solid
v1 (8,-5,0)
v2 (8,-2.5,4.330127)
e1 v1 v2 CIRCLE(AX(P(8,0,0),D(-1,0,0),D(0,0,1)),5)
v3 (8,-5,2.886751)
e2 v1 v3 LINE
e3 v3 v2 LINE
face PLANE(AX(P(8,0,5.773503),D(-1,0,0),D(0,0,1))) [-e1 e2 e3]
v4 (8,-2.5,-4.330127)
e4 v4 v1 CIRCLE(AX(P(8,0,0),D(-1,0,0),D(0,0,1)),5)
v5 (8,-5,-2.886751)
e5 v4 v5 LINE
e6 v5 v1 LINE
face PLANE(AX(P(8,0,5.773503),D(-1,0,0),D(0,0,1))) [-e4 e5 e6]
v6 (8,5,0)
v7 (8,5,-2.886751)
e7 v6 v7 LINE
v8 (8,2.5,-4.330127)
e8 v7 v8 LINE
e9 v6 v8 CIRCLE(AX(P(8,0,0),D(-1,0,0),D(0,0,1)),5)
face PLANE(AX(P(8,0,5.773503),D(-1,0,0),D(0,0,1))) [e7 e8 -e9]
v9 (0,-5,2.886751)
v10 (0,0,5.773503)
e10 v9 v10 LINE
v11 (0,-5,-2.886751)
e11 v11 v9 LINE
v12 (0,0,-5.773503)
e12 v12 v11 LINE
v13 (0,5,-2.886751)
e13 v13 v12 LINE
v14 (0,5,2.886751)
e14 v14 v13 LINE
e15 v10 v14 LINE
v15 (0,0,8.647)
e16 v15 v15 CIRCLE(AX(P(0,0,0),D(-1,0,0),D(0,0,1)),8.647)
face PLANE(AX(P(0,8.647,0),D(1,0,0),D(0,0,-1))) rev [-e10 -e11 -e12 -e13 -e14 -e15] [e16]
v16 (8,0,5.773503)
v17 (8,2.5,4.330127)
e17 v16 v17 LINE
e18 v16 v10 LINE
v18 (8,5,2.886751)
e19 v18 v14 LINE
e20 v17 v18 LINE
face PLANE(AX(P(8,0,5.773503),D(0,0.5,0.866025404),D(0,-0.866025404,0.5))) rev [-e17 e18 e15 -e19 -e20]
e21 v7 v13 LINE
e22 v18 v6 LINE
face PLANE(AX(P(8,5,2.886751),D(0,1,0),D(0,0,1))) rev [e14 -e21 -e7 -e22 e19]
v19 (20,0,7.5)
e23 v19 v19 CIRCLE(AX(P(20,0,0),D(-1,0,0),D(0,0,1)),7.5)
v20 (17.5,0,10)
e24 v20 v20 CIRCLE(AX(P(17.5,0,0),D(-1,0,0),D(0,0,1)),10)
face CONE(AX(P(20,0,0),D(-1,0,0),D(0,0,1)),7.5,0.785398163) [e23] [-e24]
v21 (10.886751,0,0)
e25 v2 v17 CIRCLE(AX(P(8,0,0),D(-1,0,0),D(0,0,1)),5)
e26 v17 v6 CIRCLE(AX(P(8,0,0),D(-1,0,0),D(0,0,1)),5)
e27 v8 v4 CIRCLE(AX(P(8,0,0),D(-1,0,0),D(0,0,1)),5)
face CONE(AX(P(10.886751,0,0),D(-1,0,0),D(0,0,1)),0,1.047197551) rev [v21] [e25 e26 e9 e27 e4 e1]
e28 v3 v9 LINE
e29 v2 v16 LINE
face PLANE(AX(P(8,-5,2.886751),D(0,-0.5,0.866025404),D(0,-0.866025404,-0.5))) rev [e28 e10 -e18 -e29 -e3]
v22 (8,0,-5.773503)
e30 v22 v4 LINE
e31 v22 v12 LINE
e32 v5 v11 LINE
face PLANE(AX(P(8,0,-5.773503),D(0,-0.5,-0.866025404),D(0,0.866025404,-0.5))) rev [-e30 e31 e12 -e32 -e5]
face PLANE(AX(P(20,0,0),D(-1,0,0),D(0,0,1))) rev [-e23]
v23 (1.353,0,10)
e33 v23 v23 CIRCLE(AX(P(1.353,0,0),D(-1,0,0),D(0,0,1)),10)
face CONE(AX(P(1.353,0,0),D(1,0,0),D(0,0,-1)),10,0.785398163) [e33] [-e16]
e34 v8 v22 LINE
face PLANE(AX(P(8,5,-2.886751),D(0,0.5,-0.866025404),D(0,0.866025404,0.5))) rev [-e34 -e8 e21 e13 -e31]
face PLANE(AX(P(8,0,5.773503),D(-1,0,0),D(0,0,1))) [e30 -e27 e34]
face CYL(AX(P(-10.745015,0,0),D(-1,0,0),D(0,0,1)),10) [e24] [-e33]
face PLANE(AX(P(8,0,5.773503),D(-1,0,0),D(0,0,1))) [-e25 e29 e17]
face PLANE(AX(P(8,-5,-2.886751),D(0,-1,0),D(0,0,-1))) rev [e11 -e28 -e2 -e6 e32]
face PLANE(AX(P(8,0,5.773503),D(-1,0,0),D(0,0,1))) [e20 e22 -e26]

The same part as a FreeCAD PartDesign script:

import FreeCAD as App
import Part
import Sketcher

V = App.Vector
Q = App.Units.Quantity


def add_polygon(sketch, points):
    """Adds a closed chain of lines whose ends are joined by coincident constraints."""
    first, n = sketch.GeometryCount, len(points)
    for a, b in zip(points, points[1:] + points[:1]):
        sketch.addGeometry(Part.LineSegment(App.Vector(*a, 0), App.Vector(*b, 0)), False)
    for i in range(n):
        sketch.addConstraint(Sketcher.Constraint("Coincident", first + i, 2, first + (i + 1) % n, 1))

doc = App.newDocument("Part")
body = doc.addObject("PartDesign::Body", "Body")

# Sketch on XY plane
sketch1 = body.newObject("Sketcher::SketchObject", "Sketch")
sketch1.AttachmentSupport = (doc.getObject("XY_Plane"), [""])
sketch1.MapMode = "FlatFace"
add_polygon(sketch1, [(0, 0), (20, 0), (20, 7.5), (17.5, 10), (1.4, 10), (0, 8.6)])  # lines 0-5
sketch1.addConstraint([
    Sketcher.Constraint("Horizontal", 0),
    Sketcher.Constraint("Vertical", 1),
    Sketcher.Constraint("Horizontal", 3),
    Sketcher.Constraint("Vertical", 5),
    Sketcher.Constraint("Coincident", 5, 2, -1, 1),
    Sketcher.Constraint("Perpendicular", 2, 4),
    Sketcher.Constraint("DistanceX", 0, 1, 0, 2, 20.0),
    Sketcher.Constraint("Angle", 2, Q("135 deg")),
    Sketcher.Constraint("DistanceY", 1, 1, 1, 2, 7.5),
    Sketcher.Constraint("DistanceY", -1, 1, 2, 2, 10.0),
    Sketcher.Constraint("DistanceX", 3, 2, 3, 1, 16.147),
])
revolution = body.newObject("PartDesign::Revolution", "Revolution")
revolution.Profile = sketch1
revolution.ReferenceAxis = (sketch1, ["H_Axis"])
revolution.Angle = 360

# Sketch on YZ plane
sketch2 = body.newObject("Sketcher::SketchObject", "Sketch001")
sketch2.AttachmentSupport = (doc.getObject("YZ_Plane"), [""])
sketch2.MapMode = "FlatFace"
add_polygon(sketch2, [(0, 6), (5, 3), (5, -3), (0, -6), (-5, -3), (-5, 3)])  # lines 0-5
sketch2.addConstraint([
    Sketcher.Constraint("Vertical", 1),
    Sketcher.Constraint("Vertical", 4),
    Sketcher.Constraint("Symmetric", 0, 2, 3, 2, -1, 1),
    Sketcher.Constraint("Symmetric", 2, 2, 5, 2, -1, 1),
    Sketcher.Constraint("PointOnObject", 2, 2, -2),
    Sketcher.Constraint("Parallel", 2, 5),
    Sketcher.Constraint("Horizontal", 1, 2, 3, 2),
    Sketcher.Constraint("Angle", 0, Q("-30 deg")),
    Sketcher.Constraint("DistanceX", -1, 1, 0, 2, 5.0),
    Sketcher.Constraint("DistanceY", 1, 2, 1, 1, 5.773503),
])
pocket1 = body.newObject("PartDesign::Pocket", "Pocket")
pocket1.Profile = sketch2
pocket1.Length = 8
pocket1.Reversed = True

# Sketch on XY plane
sketch3 = body.newObject("Sketcher::SketchObject", "Sketch002")
sketch3.AttachmentSupport = (doc.getObject("XY_Plane"), [""])
sketch3.MapMode = "FlatFace"
add_polygon(sketch3, [(10.9, 0), (8, 5), (8, 0)])  # lines 0-2
sketch3.addConstraint([
    Sketcher.Constraint("Vertical", 1),
    Sketcher.Constraint("Horizontal", 2),
    Sketcher.Constraint("PointOnObject", 1, 2, -1),
    Sketcher.Constraint("DistanceY", 1, 2, 1, 1, 5.0),
    Sketcher.Constraint("Angle", 0, Q("120 deg")),
    Sketcher.Constraint("DistanceX", -1, 1, 0, 2, 8.0),
])
groove = body.newObject("PartDesign::Groove", "Groove")
groove.Profile = sketch3
groove.ReferenceAxis = (sketch3, ["H_Axis"])
groove.Angle = 360

doc.recompute()
